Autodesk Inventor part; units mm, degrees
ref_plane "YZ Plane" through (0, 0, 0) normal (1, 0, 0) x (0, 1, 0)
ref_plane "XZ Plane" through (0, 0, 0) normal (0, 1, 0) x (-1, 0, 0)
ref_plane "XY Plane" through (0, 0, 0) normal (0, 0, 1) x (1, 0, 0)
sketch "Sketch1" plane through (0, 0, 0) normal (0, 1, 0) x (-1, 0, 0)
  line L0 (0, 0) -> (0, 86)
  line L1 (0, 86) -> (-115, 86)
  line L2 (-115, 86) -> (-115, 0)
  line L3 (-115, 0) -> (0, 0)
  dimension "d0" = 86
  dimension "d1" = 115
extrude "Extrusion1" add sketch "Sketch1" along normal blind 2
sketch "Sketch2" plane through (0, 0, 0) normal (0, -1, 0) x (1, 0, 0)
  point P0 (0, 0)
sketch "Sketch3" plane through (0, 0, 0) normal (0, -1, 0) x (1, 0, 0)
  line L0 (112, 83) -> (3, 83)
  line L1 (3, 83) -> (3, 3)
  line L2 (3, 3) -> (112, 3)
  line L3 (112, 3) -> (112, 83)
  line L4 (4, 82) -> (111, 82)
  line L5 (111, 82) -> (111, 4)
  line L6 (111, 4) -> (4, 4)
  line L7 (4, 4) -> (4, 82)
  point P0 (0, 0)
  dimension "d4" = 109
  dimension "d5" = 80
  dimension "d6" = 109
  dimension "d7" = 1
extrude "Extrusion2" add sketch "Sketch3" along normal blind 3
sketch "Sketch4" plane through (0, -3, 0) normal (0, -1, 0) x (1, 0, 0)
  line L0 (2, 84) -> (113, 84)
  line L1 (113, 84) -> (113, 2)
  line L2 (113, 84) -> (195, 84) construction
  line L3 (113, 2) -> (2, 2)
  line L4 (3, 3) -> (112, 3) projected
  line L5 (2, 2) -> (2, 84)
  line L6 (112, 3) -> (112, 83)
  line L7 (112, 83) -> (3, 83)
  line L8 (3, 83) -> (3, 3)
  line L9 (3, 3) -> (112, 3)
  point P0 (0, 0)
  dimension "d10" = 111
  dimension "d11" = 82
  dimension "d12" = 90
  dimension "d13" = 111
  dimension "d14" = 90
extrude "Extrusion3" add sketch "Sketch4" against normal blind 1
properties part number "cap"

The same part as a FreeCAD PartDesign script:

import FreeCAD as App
import Part
import Sketcher
from FreeCAD import Vector

doc = App.newDocument("Part")
body = doc.addObject("PartDesign::Body", "Body")

sketch1 = body.newObject("Sketcher::SketchObject", "Sketch")
sketch1.AttachmentSupport = (doc.getObject("XZ_Plane"), [""])
sketch1.MapMode = "FlatFace"
sketch1.addGeometry([
    Part.LineSegment(Vector(115, 0, 0), Vector(0, 0, 0)),
    Part.LineSegment(Vector(0, 0, 0), Vector(0, 86, 0)),
    Part.LineSegment(Vector(0, 86, 0), Vector(115, 86, 0)),
    Part.LineSegment(Vector(115, 86, 0), Vector(115, 0, 0)),
], False)
sketch1.addConstraint([
    Sketcher.Constraint("Coincident", 0, 2, 1, 1),
    Sketcher.Constraint("Coincident", 1, 2, 2, 1),
    Sketcher.Constraint("Coincident", 2, 2, 3, 1),
    Sketcher.Constraint("Coincident", 3, 2, 0, 1),
    Sketcher.Constraint("Horizontal", 0),
    Sketcher.Constraint("Vertical", 1),
    Sketcher.Constraint("Horizontal", 2),
    Sketcher.Constraint("Vertical", 3),
    Sketcher.Constraint("Coincident", 0, 2, -1, 1),
    Sketcher.Constraint("DistanceX", 0, 2, 0, 1, 115.0),
    Sketcher.Constraint("DistanceY", 1, 1, 1, 2, 86.0),
])
pad1 = body.newObject("PartDesign::Pad", "Pad")
pad1.Profile = sketch1
pad1.Length = 2
pad1.Reversed = True

sketch2 = body.newObject("Sketcher::SketchObject", "Sketch001")
sketch2.AttachmentSupport = (doc.getObject("XZ_Plane"), [""])
sketch2.MapMode = "FlatFace"
sketch2.addGeometry([
    Part.LineSegment(Vector(112, 3, 0), Vector(112, 83, 0)),
    Part.LineSegment(Vector(112, 83, 0), Vector(3, 83, 0)),
    Part.LineSegment(Vector(3, 83, 0), Vector(3, 3, 0)),
    Part.LineSegment(Vector(3, 3, 0), Vector(112, 3, 0)),
    Part.LineSegment(Vector(4, 4, 0), Vector(4, 82, 0)),
    Part.LineSegment(Vector(4, 82, 0), Vector(111, 82, 0)),
    Part.LineSegment(Vector(111, 82, 0), Vector(111, 4, 0)),
    Part.LineSegment(Vector(111, 4, 0), Vector(4, 4, 0)),
], False)
sketch2.addConstraint([
    Sketcher.Constraint("Coincident", 0, 2, 1, 1),
    Sketcher.Constraint("Coincident", 1, 2, 2, 1),
    Sketcher.Constraint("Coincident", 2, 2, 3, 1),
    Sketcher.Constraint("Coincident", 3, 2, 0, 1),
    Sketcher.Constraint("Coincident", 4, 2, 5, 1),
    Sketcher.Constraint("Coincident", 5, 2, 6, 1),
    Sketcher.Constraint("Coincident", 6, 2, 7, 1),
    Sketcher.Constraint("Coincident", 7, 2, 4, 1),
    Sketcher.Constraint("Vertical", 0),
    Sketcher.Constraint("Horizontal", 1),
    Sketcher.Constraint("Vertical", 2),
    Sketcher.Constraint("Horizontal", 3),
    Sketcher.Constraint("Vertical", 4),
    Sketcher.Constraint("Horizontal", 5),
    Sketcher.Constraint("Vertical", 6),
    Sketcher.Constraint("Horizontal", 7),
    Sketcher.Constraint("DistanceX", 1, 2, 1, 1, 109.0),
    Sketcher.Constraint("DistanceY", 0, 1, 0, 2, 80.0),
    Sketcher.Constraint("DistanceX", 1, 2, 4, 2, 1.0),
    Sketcher.Constraint("DistanceY", 4, 2, 1, 2, 1.0),
    Sketcher.Constraint("DistanceX", 5, 2, 0, 2, 1.0),
    Sketcher.Constraint("DistanceY", 3, 2, 6, 2, 1.0),
    Sketcher.Constraint("DistanceX", -1, 1, 0, 2, 112.0),
    Sketcher.Constraint("DistanceY", -1, 1, 0, 2, 83.0),
])
pad2 = body.newObject("PartDesign::Pad", "Pad001")
pad2.Profile = sketch2
pad2.Length = 3

sketch3 = body.newObject("Sketcher::SketchObject", "Sketch002")
sketch3.AttachmentSupport = (doc.getObject("XZ_Plane"), [""])
sketch3.MapMode = "FlatFace"
sketch3.AttachmentOffset = App.Placement(Vector(0, 0, 3), App.Rotation())
sketch3.addGeometry([
    Part.LineSegment(Vector(113, 84, 0), Vector(2, 84, 0)),
    Part.LineSegment(Vector(2, 84, 0), Vector(2, 2, 0)),
    Part.LineSegment(Vector(2, 2, 0), Vector(113, 2, 0)),
    Part.LineSegment(Vector(113, 2, 0), Vector(113, 84, 0)),
    Part.LineSegment(Vector(112, 3, 0), Vector(3, 3, 0)),
    Part.LineSegment(Vector(3, 3, 0), Vector(3, 83, 0)),
    Part.LineSegment(Vector(3, 83, 0), Vector(112, 83, 0)),
    Part.LineSegment(Vector(112, 83, 0), Vector(112, 3, 0)),
], False)
sketch3.addConstraint([
    Sketcher.Constraint("Coincident", 0, 2, 1, 1),
    Sketcher.Constraint("Coincident", 1, 2, 2, 1),
    Sketcher.Constraint("Coincident", 2, 2, 3, 1),
    Sketcher.Constraint("Coincident", 3, 2, 0, 1),
    Sketcher.Constraint("Coincident", 4, 2, 5, 1),
    Sketcher.Constraint("Coincident", 5, 2, 6, 1),
    Sketcher.Constraint("Coincident", 6, 2, 7, 1),
    Sketcher.Constraint("Coincident", 7, 2, 4, 1),
    Sketcher.Constraint("Horizontal", 0),
    Sketcher.Constraint("Vertical", 1),
    Sketcher.Constraint("Horizontal", 2),
    Sketcher.Constraint("Vertical", 3),
    Sketcher.Constraint("Horizontal", 4),
    Sketcher.Constraint("Vertical", 5),
    Sketcher.Constraint("Horizontal", 6),
    Sketcher.Constraint("Vertical", 7),
    Sketcher.Constraint("DistanceX", 0, 2, 0, 1, 111.0),
    Sketcher.Constraint("DistanceY", 1, 2, 1, 1, 82.0),
    Sketcher.Constraint("DistanceX", 4, 2, 4, 1, 109.0),
    Sketcher.Constraint("DistanceY", 5, 1, 5, 2, 80.0),
    Sketcher.Constraint("DistanceX", -1, 1, 0, 2, 2.0),
    Sketcher.Constraint("DistanceY", -1, 1, 0, 2, 84.0),
    Sketcher.Constraint("DistanceX", -1, 1, 4, 2, 3.0),
    Sketcher.Constraint("DistanceY", -1, 1, 4, 2, 3.0),
])
pad3 = body.newObject("PartDesign::Pad", "Pad002")
pad3.Profile = sketch3
pad3.Length = 1
pad3.Reversed = True

doc.recompute()
